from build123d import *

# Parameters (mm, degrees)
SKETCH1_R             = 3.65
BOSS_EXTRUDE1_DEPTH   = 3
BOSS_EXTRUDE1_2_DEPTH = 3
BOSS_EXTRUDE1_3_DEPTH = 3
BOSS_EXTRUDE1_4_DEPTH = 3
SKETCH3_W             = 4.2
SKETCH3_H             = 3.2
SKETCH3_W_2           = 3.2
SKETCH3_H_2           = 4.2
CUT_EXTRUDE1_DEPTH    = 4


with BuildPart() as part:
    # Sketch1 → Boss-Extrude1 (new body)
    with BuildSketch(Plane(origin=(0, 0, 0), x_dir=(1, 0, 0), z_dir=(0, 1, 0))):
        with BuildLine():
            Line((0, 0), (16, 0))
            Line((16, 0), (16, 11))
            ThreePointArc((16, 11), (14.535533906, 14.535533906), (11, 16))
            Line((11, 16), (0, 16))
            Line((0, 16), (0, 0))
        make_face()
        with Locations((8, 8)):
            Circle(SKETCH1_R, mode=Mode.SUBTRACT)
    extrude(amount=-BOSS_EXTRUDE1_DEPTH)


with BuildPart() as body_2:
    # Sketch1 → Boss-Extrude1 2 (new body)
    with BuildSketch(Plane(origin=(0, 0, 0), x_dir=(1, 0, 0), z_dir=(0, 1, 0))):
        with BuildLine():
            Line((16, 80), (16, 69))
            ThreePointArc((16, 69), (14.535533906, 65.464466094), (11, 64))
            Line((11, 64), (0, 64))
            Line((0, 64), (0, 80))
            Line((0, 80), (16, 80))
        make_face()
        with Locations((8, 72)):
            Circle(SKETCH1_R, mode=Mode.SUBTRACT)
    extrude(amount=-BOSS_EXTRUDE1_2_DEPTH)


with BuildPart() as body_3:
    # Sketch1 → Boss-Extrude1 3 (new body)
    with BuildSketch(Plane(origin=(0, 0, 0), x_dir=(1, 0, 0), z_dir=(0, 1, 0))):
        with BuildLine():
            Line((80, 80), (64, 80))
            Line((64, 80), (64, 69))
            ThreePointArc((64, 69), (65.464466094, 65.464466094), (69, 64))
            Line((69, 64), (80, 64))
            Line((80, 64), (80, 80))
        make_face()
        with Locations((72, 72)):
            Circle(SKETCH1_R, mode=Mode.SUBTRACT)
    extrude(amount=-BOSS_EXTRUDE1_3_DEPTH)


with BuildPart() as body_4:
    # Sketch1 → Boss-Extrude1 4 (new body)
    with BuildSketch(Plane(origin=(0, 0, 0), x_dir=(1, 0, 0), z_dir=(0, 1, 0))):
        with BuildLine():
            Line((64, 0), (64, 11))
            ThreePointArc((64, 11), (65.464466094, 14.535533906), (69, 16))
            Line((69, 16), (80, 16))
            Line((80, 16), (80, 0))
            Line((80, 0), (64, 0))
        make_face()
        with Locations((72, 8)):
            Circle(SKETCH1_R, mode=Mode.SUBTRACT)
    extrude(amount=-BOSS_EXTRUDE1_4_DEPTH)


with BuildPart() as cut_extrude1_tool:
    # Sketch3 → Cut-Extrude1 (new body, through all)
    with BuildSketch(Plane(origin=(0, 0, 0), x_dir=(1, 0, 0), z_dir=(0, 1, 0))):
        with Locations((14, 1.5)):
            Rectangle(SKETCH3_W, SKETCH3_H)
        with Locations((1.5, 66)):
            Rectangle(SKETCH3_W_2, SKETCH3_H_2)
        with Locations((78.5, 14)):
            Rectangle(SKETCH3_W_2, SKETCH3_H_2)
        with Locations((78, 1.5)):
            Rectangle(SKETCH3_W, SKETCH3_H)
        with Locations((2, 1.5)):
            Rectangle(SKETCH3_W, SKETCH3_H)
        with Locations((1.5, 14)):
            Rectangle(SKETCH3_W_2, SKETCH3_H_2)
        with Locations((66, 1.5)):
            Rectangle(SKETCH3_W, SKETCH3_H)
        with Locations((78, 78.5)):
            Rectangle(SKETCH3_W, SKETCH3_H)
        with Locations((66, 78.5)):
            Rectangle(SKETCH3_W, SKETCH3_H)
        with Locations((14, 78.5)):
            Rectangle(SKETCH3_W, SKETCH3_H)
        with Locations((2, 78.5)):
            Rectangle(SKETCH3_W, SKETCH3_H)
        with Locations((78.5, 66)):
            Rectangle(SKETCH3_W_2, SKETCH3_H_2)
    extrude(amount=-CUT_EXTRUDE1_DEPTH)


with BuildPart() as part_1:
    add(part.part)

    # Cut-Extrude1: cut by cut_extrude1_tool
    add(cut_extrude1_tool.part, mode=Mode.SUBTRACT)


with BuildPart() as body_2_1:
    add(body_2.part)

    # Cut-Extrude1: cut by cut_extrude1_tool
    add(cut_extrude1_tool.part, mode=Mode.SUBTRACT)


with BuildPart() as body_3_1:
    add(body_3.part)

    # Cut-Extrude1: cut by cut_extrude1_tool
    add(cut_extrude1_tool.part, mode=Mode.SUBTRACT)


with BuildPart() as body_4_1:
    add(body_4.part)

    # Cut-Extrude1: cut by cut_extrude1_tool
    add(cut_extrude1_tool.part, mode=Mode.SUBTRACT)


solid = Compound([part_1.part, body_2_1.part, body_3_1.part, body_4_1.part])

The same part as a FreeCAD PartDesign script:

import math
import FreeCAD as App
import Part
import Sketcher

V = App.Vector
Q = App.Units.Quantity


def add_polygon(sketch, points):
    """Adds a closed chain of lines whose ends are joined by coincident constraints."""
    first, n = sketch.GeometryCount, len(points)
    for a, b in zip(points, points[1:] + points[:1]):
        sketch.addGeometry(Part.LineSegment(App.Vector(*a, 0), App.Vector(*b, 0)), False)
    for i in range(n):
        sketch.addConstraint(Sketcher.Constraint("Coincident", first + i, 2, first + (i + 1) % n, 1))

doc = App.newDocument("Part")
body = doc.addObject("PartDesign::Body", "Body")

sketch1 = body.newObject("Sketcher::SketchObject", "Sketch")
sketch1.AttachmentSupport = (doc.getObject("XZ_Plane"), [""])
sketch1.MapMode = "FlatFace"
sketch1.addGeometry(Part.LineSegment(V(0, 0, 0), V(16, 0, 0)), False)
sketch1.addGeometry(Part.LineSegment(V(16, 0, 0), V(16, -11, 0)), False)
sketch1.addGeometry(Part.ArcOfCircle(Part.Circle(V(11, -11, 0), V(0, 0, 1), 5), math.radians(-90), math.radians(0)), False)
sketch1.addGeometry(Part.LineSegment(V(11, -16, 0), V(0, -16, 0)), False)
sketch1.addGeometry(Part.LineSegment(V(0, -16, 0), V(0, 0, 0)), False)
sketch1.addGeometry(Part.Circle(V(8, -8, 0), V(0, 0, 1), 3.6), False)
sketch1.addConstraint(Sketcher.Constraint("Coincident", 0, 2, 1, 1))
sketch1.addConstraint(Sketcher.Constraint("Tangent", 1, 2, 2, 2))
sketch1.addConstraint(Sketcher.Constraint("Tangent", 2, 1, 3, 1))
sketch1.addConstraint(Sketcher.Constraint("Coincident", 3, 2, 4, 1))
sketch1.addConstraint(Sketcher.Constraint("Coincident", 4, 2, 0, 1))
sketch1.addConstraint(Sketcher.Constraint("Horizontal", 0))
sketch1.addConstraint(Sketcher.Constraint("Vertical", 1))
sketch1.addConstraint(Sketcher.Constraint("Horizontal", 3))
sketch1.addConstraint(Sketcher.Constraint("Vertical", 4))
sketch1.addConstraint(Sketcher.Constraint("Coincident", 4, 2, -1, 1))
sketch1.addConstraint(Sketcher.Constraint("Equal", 3, 1))
sketch1.addConstraint(Sketcher.Constraint("Radius", 2, Q("5 mm")))
sketch1.addConstraint(Sketcher.Constraint("Diameter", 5, Q("7.3 mm")))
sketch1.addConstraint(Sketcher.Constraint("DistanceX", 0, 1, 0, 2, Q("16 mm")))
sketch1.addConstraint(Sketcher.Constraint("DistanceX", -1, 1, 5, 3, Q("8 mm")))
sketch1.addConstraint(Sketcher.Constraint("DistanceY", 5, 3, -1, 1, Q("8 mm")))
pad1 = body.newObject("PartDesign::Pad", "Pad")
pad1.Profile = sketch1
pad1.Length = 3
body2 = doc.addObject("PartDesign::Body", "Body001")

sketch2 = body2.newObject("Sketcher::SketchObject", "Sketch001")
sketch2.AttachmentSupport = (doc.getObject("XZ_Plane001"), [""])
sketch2.MapMode = "FlatFace"
sketch2.addGeometry(Part.LineSegment(V(16, -69, 0), V(16, -80, 0)), False)
sketch2.addGeometry(Part.LineSegment(V(16, -80, 0), V(0, -80, 0)), False)
sketch2.addGeometry(Part.LineSegment(V(0, -80, 0), V(0, -64, 0)), False)
sketch2.addGeometry(Part.LineSegment(V(0, -64, 0), V(11, -64, 0)), False)
sketch2.addGeometry(Part.ArcOfCircle(Part.Circle(V(11, -69, 0), V(0, 0, 1), 5), math.radians(0), math.radians(90)), False)
sketch2.addGeometry(Part.Circle(V(8, -72, 0), V(0, 0, 1), 3.6), False)
sketch2.addConstraint(Sketcher.Constraint("Coincident", 0, 2, 1, 1))
sketch2.addConstraint(Sketcher.Constraint("Coincident", 1, 2, 2, 1))
sketch2.addConstraint(Sketcher.Constraint("Coincident", 2, 2, 3, 1))
sketch2.addConstraint(Sketcher.Constraint("Tangent", 3, 2, 4, 2))
sketch2.addConstraint(Sketcher.Constraint("Tangent", 4, 1, 0, 1))
sketch2.addConstraint(Sketcher.Constraint("Vertical", 0))
sketch2.addConstraint(Sketcher.Constraint("Horizontal", 1))
sketch2.addConstraint(Sketcher.Constraint("Vertical", 2))
sketch2.addConstraint(Sketcher.Constraint("Horizontal", 3))
sketch2.addConstraint(Sketcher.Constraint("PointOnObject", 1, 2, -2))
sketch2.addConstraint(Sketcher.Constraint("Equal", 3, 0))
sketch2.addConstraint(Sketcher.Constraint("Radius", 4, Q("5 mm")))
sketch2.addConstraint(Sketcher.Constraint("Diameter", 5, Q("7.3 mm")))
sketch2.addConstraint(Sketcher.Constraint("DistanceX", 1, 2, 1, 1, Q("16 mm")))
sketch2.addConstraint(Sketcher.Constraint("DistanceY", 4, 3, -1, 1, Q("69 mm")))
sketch2.addConstraint(Sketcher.Constraint("DistanceX", -1, 1, 5, 3, Q("8 mm")))
sketch2.addConstraint(Sketcher.Constraint("DistanceY", 5, 3, -1, 1, Q("72 mm")))
pad2 = body2.newObject("PartDesign::Pad", "Pad001")
pad2.Profile = sketch2
pad2.Length = 3
body3 = doc.addObject("PartDesign::Body", "Body002")

sketch3 = body3.newObject("Sketcher::SketchObject", "Sketch002")
sketch3.AttachmentSupport = (doc.getObject("XZ_Plane002"), [""])
sketch3.MapMode = "FlatFace"
sketch3.addGeometry(Part.LineSegment(V(80, -80, 0), V(64, -80, 0)), False)
sketch3.addGeometry(Part.LineSegment(V(64, -80, 0), V(64, -69, 0)), False)
sketch3.addGeometry(Part.ArcOfCircle(Part.Circle(V(69, -69, 0), V(0, 0, 1), 5), math.radians(90), math.radians(180)), False)
sketch3.addGeometry(Part.LineSegment(V(69, -64, 0), V(80, -64, 0)), False)
sketch3.addGeometry(Part.LineSegment(V(80, -64, 0), V(80, -80, 0)), False)
sketch3.addGeometry(Part.Circle(V(72, -72, 0), V(0, 0, 1), 3.6), False)
sketch3.addConstraint(Sketcher.Constraint("Coincident", 0, 2, 1, 1))
sketch3.addConstraint(Sketcher.Constraint("Tangent", 1, 2, 2, 2))
sketch3.addConstraint(Sketcher.Constraint("Tangent", 2, 1, 3, 1))
sketch3.addConstraint(Sketcher.Constraint("Coincident", 3, 2, 4, 1))
sketch3.addConstraint(Sketcher.Constraint("Coincident", 4, 2, 0, 1))
sketch3.addConstraint(Sketcher.Constraint("Horizontal", 0))
sketch3.addConstraint(Sketcher.Constraint("Vertical", 1))
sketch3.addConstraint(Sketcher.Constraint("Horizontal", 3))
sketch3.addConstraint(Sketcher.Constraint("Vertical", 4))
sketch3.addConstraint(Sketcher.Constraint("Equal", 3, 1))
sketch3.addConstraint(Sketcher.Constraint("Radius", 2, Q("5 mm")))
sketch3.addConstraint(Sketcher.Constraint("Diameter", 5, Q("7.3 mm")))
sketch3.addConstraint(Sketcher.Constraint("DistanceX", 0, 2, 0, 1, Q("16 mm")))
sketch3.addConstraint(Sketcher.Constraint("DistanceX", -1, 1, 2, 3, Q("69 mm")))
sketch3.addConstraint(Sketcher.Constraint("DistanceY", 2, 3, -1, 1, Q("69 mm")))
sketch3.addConstraint(Sketcher.Constraint("DistanceX", -1, 1, 5, 3, Q("72 mm")))
sketch3.addConstraint(Sketcher.Constraint("DistanceY", 5, 3, -1, 1, Q("72 mm")))
pad3 = body3.newObject("PartDesign::Pad", "Pad002")
pad3.Profile = sketch3
pad3.Length = 3
body4 = doc.addObject("PartDesign::Body", "Body003")

sketch4 = body4.newObject("Sketcher::SketchObject", "Sketch003")
sketch4.AttachmentSupport = (doc.getObject("XZ_Plane003"), [""])
sketch4.MapMode = "FlatFace"
sketch4.addGeometry(Part.LineSegment(V(64, -11, 0), V(64, 0, 0)), False)
sketch4.addGeometry(Part.LineSegment(V(64, 0, 0), V(80, 0, 0)), False)
sketch4.addGeometry(Part.LineSegment(V(80, 0, 0), V(80, -16, 0)), False)
sketch4.addGeometry(Part.LineSegment(V(80, -16, 0), V(69, -16, 0)), False)
sketch4.addGeometry(Part.ArcOfCircle(Part.Circle(V(69, -11, 0), V(0, 0, 1), 5), math.radians(180), math.radians(270)), False)
sketch4.addGeometry(Part.Circle(V(72, -8, 0), V(0, 0, 1), 3.6), False)
sketch4.addConstraint(Sketcher.Constraint("Coincident", 0, 2, 1, 1))
sketch4.addConstraint(Sketcher.Constraint("Coincident", 1, 2, 2, 1))
sketch4.addConstraint(Sketcher.Constraint("Coincident", 2, 2, 3, 1))
sketch4.addConstraint(Sketcher.Constraint("Tangent", 3, 2, 4, 2))
sketch4.addConstraint(Sketcher.Constraint("Tangent", 4, 1, 0, 1))
sketch4.addConstraint(Sketcher.Constraint("Vertical", 0))
sketch4.addConstraint(Sketcher.Constraint("Horizontal", 1))
sketch4.addConstraint(Sketcher.Constraint("Vertical", 2))
sketch4.addConstraint(Sketcher.Constraint("Horizontal", 3))
sketch4.addConstraint(Sketcher.Constraint("PointOnObject", 0, 2, -1))
sketch4.addConstraint(Sketcher.Constraint("Equal", 3, 0))
sketch4.addConstraint(Sketcher.Constraint("Radius", 4, Q("5 mm")))
sketch4.addConstraint(Sketcher.Constraint("Diameter", 5, Q("7.3 mm")))
sketch4.addConstraint(Sketcher.Constraint("DistanceX", 1, 1, 1, 2, Q("16 mm")))
sketch4.addConstraint(Sketcher.Constraint("DistanceX", -1, 1, 4, 3, Q("69 mm")))
sketch4.addConstraint(Sketcher.Constraint("DistanceX", -1, 1, 5, 3, Q("72 mm")))
sketch4.addConstraint(Sketcher.Constraint("DistanceY", 5, 3, -1, 1, Q("8 mm")))
pad4 = body4.newObject("PartDesign::Pad", "Pad003")
pad4.Profile = sketch4
pad4.Length = 3
body5 = doc.addObject("PartDesign::Body", "Body004")
body5.AllowCompound = True

sketch5 = body5.newObject("Sketcher::SketchObject", "Sketch004")
sketch5.AttachmentSupport = (doc.getObject("XZ_Plane004"), [""])
sketch5.MapMode = "FlatFace"
add_polygon(sketch5, [(11.9, -3.1), (11.9, 0.1), (16.1, 0.1), (16.1, -3.1)])
add_polygon(sketch5, [(-0.1, -68.1), (-0.1, -63.9), (3.1, -63.9), (3.1, -68.1)])
add_polygon(sketch5, [(76.9, -16.1), (76.9, -11.9), (80.1, -11.9), (80.1, -16.1)])
add_polygon(sketch5, [(75.9, -3.1), (75.9, 0.1), (80.1, 0.1), (80.1, -3.1)])
add_polygon(sketch5, [(-0.1, -3.1), (-0.1, 0.1), (4.1, 0.1), (4.1, -3.1)])
add_polygon(sketch5, [(-0.1, -16.1), (-0.1, -11.9), (3.1, -11.9), (3.1, -16.1)])
add_polygon(sketch5, [(63.9, -3.1), (63.9, 0.1), (68.1, 0.1), (68.1, -3.1)])
add_polygon(sketch5, [(75.9, -80.1), (75.9, -76.9), (80.1, -76.9), (80.1, -80.1)])
add_polygon(sketch5, [(63.9, -80.1), (63.9, -76.9), (68.1, -76.9), (68.1, -80.1)])
add_polygon(sketch5, [(11.9, -80.1), (11.9, -76.9), (16.1, -76.9), (16.1, -80.1)])
add_polygon(sketch5, [(-0.1, -80.1), (-0.1, -76.9), (4.1, -76.9), (4.1, -80.1)])
add_polygon(sketch5, [(76.9, -68.1), (76.9, -63.9), (80.1, -63.9), (80.1, -68.1)])
sketch5.addConstraint(Sketcher.Constraint("Vertical", 0))
sketch5.addConstraint(Sketcher.Constraint("Horizontal", 1))
sketch5.addConstraint(Sketcher.Constraint("Vertical", 2))
sketch5.addConstraint(Sketcher.Constraint("Horizontal", 3))
sketch5.addConstraint(Sketcher.Constraint("Vertical", 4))
sketch5.addConstraint(Sketcher.Constraint("Horizontal", 5))
sketch5.addConstraint(Sketcher.Constraint("Vertical", 6))
sketch5.addConstraint(Sketcher.Constraint("Horizontal", 7))
sketch5.addConstraint(Sketcher.Constraint("Vertical", 8))
sketch5.addConstraint(Sketcher.Constraint("Horizontal", 9))
sketch5.addConstraint(Sketcher.Constraint("Vertical", 10))
sketch5.addConstraint(Sketcher.Constraint("Horizontal", 11))
sketch5.addConstraint(Sketcher.Constraint("Vertical", 12))
sketch5.addConstraint(Sketcher.Constraint("Horizontal", 13))
sketch5.addConstraint(Sketcher.Constraint("Vertical", 14))
sketch5.addConstraint(Sketcher.Constraint("Horizontal", 15))
sketch5.addConstraint(Sketcher.Constraint("Vertical", 16))
sketch5.addConstraint(Sketcher.Constraint("Horizontal", 17))
sketch5.addConstraint(Sketcher.Constraint("Vertical", 18))
sketch5.addConstraint(Sketcher.Constraint("Horizontal", 19))
sketch5.addConstraint(Sketcher.Constraint("Vertical", 20))
sketch5.addConstraint(Sketcher.Constraint("Horizontal", 21))
sketch5.addConstraint(Sketcher.Constraint("Vertical", 22))
sketch5.addConstraint(Sketcher.Constraint("Horizontal", 23))
sketch5.addConstraint(Sketcher.Constraint("Vertical", 24))
sketch5.addConstraint(Sketcher.Constraint("Horizontal", 25))
sketch5.addConstraint(Sketcher.Constraint("Vertical", 26))
sketch5.addConstraint(Sketcher.Constraint("Horizontal", 27))
sketch5.addConstraint(Sketcher.Constraint("Vertical", 28))
sketch5.addConstraint(Sketcher.Constraint("Horizontal", 29))
sketch5.addConstraint(Sketcher.Constraint("Vertical", 30))
sketch5.addConstraint(Sketcher.Constraint("Horizontal", 31))
sketch5.addConstraint(Sketcher.Constraint("Vertical", 32))
sketch5.addConstraint(Sketcher.Constraint("Horizontal", 33))
sketch5.addConstraint(Sketcher.Constraint("Vertical", 34))
sketch5.addConstraint(Sketcher.Constraint("Horizontal", 35))
sketch5.addConstraint(Sketcher.Constraint("Vertical", 36))
sketch5.addConstraint(Sketcher.Constraint("Horizontal", 37))
sketch5.addConstraint(Sketcher.Constraint("Vertical", 38))
sketch5.addConstraint(Sketcher.Constraint("Horizontal", 39))
sketch5.addConstraint(Sketcher.Constraint("Vertical", 40))
sketch5.addConstraint(Sketcher.Constraint("Horizontal", 41))
sketch5.addConstraint(Sketcher.Constraint("Vertical", 42))
sketch5.addConstraint(Sketcher.Constraint("Horizontal", 43))
sketch5.addConstraint(Sketcher.Constraint("Vertical", 44))
sketch5.addConstraint(Sketcher.Constraint("Horizontal", 45))
sketch5.addConstraint(Sketcher.Constraint("Vertical", 46))
sketch5.addConstraint(Sketcher.Constraint("Horizontal", 47))
sketch5.addConstraint(Sketcher.Constraint("Horizontal", 1, 2, 12, 2))
sketch5.addConstraint(Sketcher.Constraint("Horizontal", 3, 2, 14, 2))
sketch5.addConstraint(Sketcher.Constraint("Horizontal", 13, 2, 16, 2))
sketch5.addConstraint(Sketcher.Constraint("Horizontal", 15, 2, 18, 2))
sketch5.addConstraint(Sketcher.Constraint("Horizontal", 9, 2, 20, 2))
sketch5.addConstraint(Sketcher.Constraint("Horizontal", 11, 2, 22, 2))
sketch5.addConstraint(Sketcher.Constraint("Horizontal", 17, 2, 24, 2))
sketch5.addConstraint(Sketcher.Constraint("Horizontal", 19, 2, 26, 2))
sketch5.addConstraint(Sketcher.Constraint("Horizontal", 29, 2, 32, 2))
sketch5.addConstraint(Sketcher.Constraint("Horizontal", 31, 2, 34, 2))
sketch5.addConstraint(Sketcher.Constraint("Horizontal", 33, 2, 36, 2))
sketch5.addConstraint(Sketcher.Constraint("Horizontal", 35, 2, 38, 2))
sketch5.addConstraint(Sketcher.Constraint("Horizontal", 37, 2, 40, 2))
sketch5.addConstraint(Sketcher.Constraint("Horizontal", 39, 2, 42, 2))
sketch5.addConstraint(Sketcher.Constraint("Horizontal", 5, 2, 44, 2))
sketch5.addConstraint(Sketcher.Constraint("Horizontal", 7, 2, 46, 2))
sketch5.addConstraint(Sketcher.Constraint("Vertical", 10, 2, 13, 2))
sketch5.addConstraint(Sketcher.Constraint("Vertical", 7, 2, 16, 2))
sketch5.addConstraint(Sketcher.Constraint("Vertical", 19, 2, 20, 2))
sketch5.addConstraint(Sketcher.Constraint("Vertical", 6, 2, 21, 2))
sketch5.addConstraint(Sketcher.Constraint("Vertical", 15, 2, 28, 2))
sketch5.addConstraint(Sketcher.Constraint("Vertical", 14, 2, 29, 2))
sketch5.addConstraint(Sketcher.Constraint("Vertical", 27, 2, 32, 2))
sketch5.addConstraint(Sketcher.Constraint("Vertical", 26, 2, 33, 2))
sketch5.addConstraint(Sketcher.Constraint("Vertical", 3, 2, 36, 2))
sketch5.addConstraint(Sketcher.Constraint("Vertical", 2, 2, 37, 2))
sketch5.addConstraint(Sketcher.Constraint("Vertical", 23, 2, 40, 2))
sketch5.addConstraint(Sketcher.Constraint("Vertical", 18, 2, 41, 2))
sketch5.addConstraint(Sketcher.Constraint("Vertical", 11, 2, 44, 2))
sketch5.addConstraint(Sketcher.Constraint("Vertical", 30, 2, 45, 2))
sketch5.addConstraint(Sketcher.Constraint("Equal", 7, 9))
sketch5.addConstraint(Sketcher.Constraint("Equal", 3, 13))
sketch5.addConstraint(Sketcher.Constraint("Equal", 15, 17))
sketch5.addConstraint(Sketcher.Constraint("Equal", 19, 25))
sketch5.addConstraint(Sketcher.Constraint("Equal", 47, 0))
sketch5.addConstraint(Sketcher.Constraint("Equal", 43, 4))
sketch5.addConstraint(Sketcher.Constraint("Equal", 6, 8))
sketch5.addConstraint(Sketcher.Constraint("Equal", 26, 28))
sketch5.addConstraint(Sketcher.Constraint("DistanceX", 1, 1, 1, 2, Q("4.2 mm")))
sketch5.addConstraint(Sketcher.Constraint("DistanceX", 5, 1, 5, 2, Q("3.2 mm")))
sketch5.addConstraint(Sketcher.Constraint("DistanceX", 4, 2, 3, 2, Q("12 mm")))
sketch5.addConstraint(Sketcher.Constraint("DistanceY", 4, 2, 0, 2, Q("64 mm")))
sketch5.addConstraint(Sketcher.Constraint("DistanceY", 8, 2, 1, 2, Q("12 mm")))
sketch5.addConstraint(Sketcher.Constraint("DistanceX", 3, 2, 8, 2, Q("65 mm")))
sketch5.addConstraint(Sketcher.Constraint("DistanceX", 24, 2, 12, 2, Q("12 mm")))
sketch5.addConstraint(Sketcher.Constraint("DistanceY", 28, 2, 8, 2, Q("65 mm")))
sketch5.addConstraint(Sketcher.Constraint("DistanceX", -1, 1, 0, 2, Q("11.9 mm")))
sketch5.addConstraint(Sketcher.Constraint("DistanceY", -1, 1, 0, 2, Q("0.1 mm")))
pad5 = body5.newObject("PartDesign::Pad", "Pad004")
pad5.Profile = sketch5
pad5.Length = 4
doc.recompute()

body6 = doc.addObject("PartDesign::Body", "Body005")
body6.BaseFeature = body5
boolean = body.newObject("PartDesign::Boolean", "Boolean")
boolean.Type = "Cut"
boolean.addObjects([body6])
doc.recompute()

body7 = doc.addObject("PartDesign::Body", "Body006")
body7.BaseFeature = body5
boolean2 = body2.newObject("PartDesign::Boolean", "Boolean001")
boolean2.Type = "Cut"
boolean2.addObjects([body7])
doc.recompute()

body8 = doc.addObject("PartDesign::Body", "Body007")
body8.BaseFeature = body5
boolean3 = body3.newObject("PartDesign::Boolean", "Boolean002")
boolean3.Type = "Cut"
boolean3.addObjects([body8])
doc.recompute()

boolean4 = body4.newObject("PartDesign::Boolean", "Boolean003")
boolean4.Type = "Cut"
boolean4.addObjects([body5])

doc.recompute()
